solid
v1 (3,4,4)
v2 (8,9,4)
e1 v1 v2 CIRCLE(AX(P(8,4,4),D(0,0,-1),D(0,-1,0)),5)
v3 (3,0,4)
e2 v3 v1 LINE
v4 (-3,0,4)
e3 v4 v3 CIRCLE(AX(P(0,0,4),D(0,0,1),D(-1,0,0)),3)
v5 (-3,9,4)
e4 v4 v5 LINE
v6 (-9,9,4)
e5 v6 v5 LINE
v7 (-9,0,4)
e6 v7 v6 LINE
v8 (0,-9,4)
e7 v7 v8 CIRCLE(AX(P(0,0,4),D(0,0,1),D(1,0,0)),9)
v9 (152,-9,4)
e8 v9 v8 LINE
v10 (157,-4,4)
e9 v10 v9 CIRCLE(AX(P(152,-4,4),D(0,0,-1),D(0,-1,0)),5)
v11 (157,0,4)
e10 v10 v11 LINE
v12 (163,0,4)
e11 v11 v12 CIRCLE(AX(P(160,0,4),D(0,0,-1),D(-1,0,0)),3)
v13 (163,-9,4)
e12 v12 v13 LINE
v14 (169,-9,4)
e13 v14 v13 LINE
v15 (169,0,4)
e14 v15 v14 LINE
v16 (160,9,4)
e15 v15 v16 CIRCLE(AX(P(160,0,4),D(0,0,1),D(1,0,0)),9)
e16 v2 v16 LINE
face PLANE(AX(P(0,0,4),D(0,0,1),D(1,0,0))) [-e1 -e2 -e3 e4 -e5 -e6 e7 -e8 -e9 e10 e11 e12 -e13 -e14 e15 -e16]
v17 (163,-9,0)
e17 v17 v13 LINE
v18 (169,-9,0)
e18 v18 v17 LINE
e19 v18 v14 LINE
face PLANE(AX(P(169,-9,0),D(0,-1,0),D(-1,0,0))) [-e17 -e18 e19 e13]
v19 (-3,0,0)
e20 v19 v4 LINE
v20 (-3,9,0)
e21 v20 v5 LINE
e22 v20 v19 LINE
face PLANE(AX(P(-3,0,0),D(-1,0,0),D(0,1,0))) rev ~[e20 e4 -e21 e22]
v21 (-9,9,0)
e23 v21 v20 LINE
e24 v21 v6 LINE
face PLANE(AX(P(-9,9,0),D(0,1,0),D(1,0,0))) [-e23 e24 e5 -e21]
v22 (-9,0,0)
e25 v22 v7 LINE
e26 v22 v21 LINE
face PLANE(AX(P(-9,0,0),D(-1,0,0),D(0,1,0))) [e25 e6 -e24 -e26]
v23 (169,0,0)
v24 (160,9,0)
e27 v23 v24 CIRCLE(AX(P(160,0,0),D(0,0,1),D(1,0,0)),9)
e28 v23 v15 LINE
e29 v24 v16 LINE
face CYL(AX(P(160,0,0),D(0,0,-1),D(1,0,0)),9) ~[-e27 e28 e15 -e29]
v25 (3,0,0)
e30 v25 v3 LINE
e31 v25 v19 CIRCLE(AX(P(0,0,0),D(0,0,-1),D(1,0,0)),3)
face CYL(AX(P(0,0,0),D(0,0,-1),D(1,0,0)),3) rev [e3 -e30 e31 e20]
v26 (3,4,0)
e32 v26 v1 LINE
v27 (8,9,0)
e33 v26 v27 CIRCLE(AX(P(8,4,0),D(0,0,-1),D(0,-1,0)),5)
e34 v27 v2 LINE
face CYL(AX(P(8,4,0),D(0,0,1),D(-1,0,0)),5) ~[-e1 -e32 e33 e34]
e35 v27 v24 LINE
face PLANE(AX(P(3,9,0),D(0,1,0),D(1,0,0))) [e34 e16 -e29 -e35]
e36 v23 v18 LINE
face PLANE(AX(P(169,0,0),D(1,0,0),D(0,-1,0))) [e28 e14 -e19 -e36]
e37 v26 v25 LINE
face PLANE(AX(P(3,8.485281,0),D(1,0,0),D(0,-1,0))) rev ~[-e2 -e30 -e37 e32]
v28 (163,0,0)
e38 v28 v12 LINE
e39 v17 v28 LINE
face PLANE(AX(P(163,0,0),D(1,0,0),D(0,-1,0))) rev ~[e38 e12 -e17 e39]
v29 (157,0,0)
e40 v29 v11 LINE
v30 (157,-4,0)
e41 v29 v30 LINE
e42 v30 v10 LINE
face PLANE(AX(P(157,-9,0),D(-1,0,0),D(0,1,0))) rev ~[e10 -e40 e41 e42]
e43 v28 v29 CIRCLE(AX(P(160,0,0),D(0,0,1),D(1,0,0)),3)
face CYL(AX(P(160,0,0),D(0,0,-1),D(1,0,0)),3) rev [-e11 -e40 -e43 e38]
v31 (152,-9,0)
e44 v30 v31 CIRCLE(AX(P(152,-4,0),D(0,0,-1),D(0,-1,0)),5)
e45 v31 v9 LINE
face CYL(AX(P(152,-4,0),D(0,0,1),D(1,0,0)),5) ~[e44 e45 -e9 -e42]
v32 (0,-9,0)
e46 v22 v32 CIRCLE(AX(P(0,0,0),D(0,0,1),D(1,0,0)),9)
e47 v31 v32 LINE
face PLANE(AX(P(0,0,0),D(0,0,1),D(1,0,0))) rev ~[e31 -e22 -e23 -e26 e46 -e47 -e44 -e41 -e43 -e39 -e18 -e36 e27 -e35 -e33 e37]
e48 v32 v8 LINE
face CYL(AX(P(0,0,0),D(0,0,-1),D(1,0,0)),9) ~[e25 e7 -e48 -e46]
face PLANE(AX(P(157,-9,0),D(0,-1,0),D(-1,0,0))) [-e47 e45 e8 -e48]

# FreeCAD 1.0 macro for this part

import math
import FreeCAD as App
import Part
import Sketcher

V = App.Vector
Q = App.Units.Quantity


def edges_at(feature, points):
    """Names of the edges that pass closest to the given points."""
    edges = feature.Shape.Edges
    near = lambda p: min(range(len(edges)), key=lambda i: edges[i].distToShape(Part.Vertex(*p))[0])
    return sorted({f"Edge{near(p) + 1}" for p in points})

doc = App.newDocument("Part")
body = doc.addObject("PartDesign::Body", "Body")

sketch1 = body.newObject("Sketcher::SketchObject", "Sketch")
sketch1.AttachmentSupport = (doc.getObject("XY_Plane"), [""])
sketch1.MapMode = "FlatFace"
sketch1.addGeometry([
    Part.ArcOfCircle(Part.Circle(V(0, 0, 0), V(0, 0, 1), 3), math.radians(180), math.radians(360)),
    Part.LineSegment(V(-3, 0, 0), V(-3, 9, 0)),
    Part.LineSegment(V(-3, 9, 0), V(-9, 9, 0)),
    Part.LineSegment(V(-9, 9, 0), V(-9, 0, 0)),
    Part.ArcOfCircle(Part.Circle(V(0, 0, 0), V(0, 0, 1), 9), math.radians(180), math.radians(270)),
    Part.LineSegment(V(0, -9, 0), V(157, -9, 0)),
    Part.LineSegment(V(157, -9, 0), V(157, 0, 0)),
    Part.ArcOfCircle(Part.Circle(V(160, 0, 0), V(0, 0, 1), 3), math.radians(0), math.radians(180)),
    Part.LineSegment(V(163, 0, 0), V(163, -9, 0)),
    Part.LineSegment(V(163, -9, 0), V(169, -9, 0)),
    Part.LineSegment(V(169, -9, 0), V(169, 0, 0)),
    Part.ArcOfCircle(Part.Circle(V(160, 0, 0), V(0, 0, 1), 9), math.radians(0), math.radians(90)),
    Part.LineSegment(V(160, 9, 0), V(3, 9, 0)),
    Part.LineSegment(V(3, 9, 0), V(3, 0, 0)),
], False)
sketch1.addConstraint([
    Sketcher.Constraint("Tangent", 0, 1, 1, 1),
    Sketcher.Constraint("Coincident", 1, 2, 2, 1),
    Sketcher.Constraint("Coincident", 2, 2, 3, 1),
    Sketcher.Constraint("Tangent", 3, 2, 4, 1),
    Sketcher.Constraint("Tangent", 4, 2, 5, 1),
    Sketcher.Constraint("Coincident", 5, 2, 6, 1),
    Sketcher.Constraint("Tangent", 6, 2, 7, 2),
    Sketcher.Constraint("Tangent", 7, 1, 8, 1),
    Sketcher.Constraint("Coincident", 8, 2, 9, 1),
    Sketcher.Constraint("Coincident", 9, 2, 10, 1),
    Sketcher.Constraint("Tangent", 10, 2, 11, 1),
    Sketcher.Constraint("Tangent", 11, 2, 12, 1),
    Sketcher.Constraint("Coincident", 12, 2, 13, 1),
    Sketcher.Constraint("Tangent", 13, 2, 0, 2),
    Sketcher.Constraint("Vertical", 1),
    Sketcher.Constraint("Horizontal", 2),
    Sketcher.Constraint("Vertical", 3),
    Sketcher.Constraint("Horizontal", 5),
    Sketcher.Constraint("Vertical", 6),
    Sketcher.Constraint("Vertical", 8),
    Sketcher.Constraint("Horizontal", 9),
    Sketcher.Constraint("Vertical", 10),
    Sketcher.Constraint("Horizontal", 12),
    Sketcher.Constraint("Vertical", 13),
    Sketcher.Constraint("Coincident", 0, 3, -1, 1),
    Sketcher.Constraint("Coincident", 4, 3, -1, 1),
    Sketcher.Constraint("Coincident", 11, 3, 7, 3),
    Sketcher.Constraint("Equal", 0, 7),
    Sketcher.Constraint("Equal", 4, 11),
    Sketcher.Constraint("PointOnObject", 7, 3, -1),
    Sketcher.Constraint("Horizontal", 5, 2, 8, 2),
    Sketcher.Constraint("Horizontal", 2, 2, 11, 2),
    Sketcher.Constraint("Radius", 0, Q("3 mm")),
    Sketcher.Constraint("Radius", 4, Q("9 mm")),
    Sketcher.Constraint("DistanceX", -1, 1, 7, 3, Q("160 mm")),
])
pad1 = body.newObject("PartDesign::Pad", "Pad")
pad1.Profile = sketch1
pad1.Length = 4
doc.recompute()

fillet = body.newObject("PartDesign::Fillet", "Fillet")
fillet.Base = (pad1, edges_at(pad1, [(157, -9, 2), (3, 9, 2)]))
fillet.Radius = 5

doc.recompute()
